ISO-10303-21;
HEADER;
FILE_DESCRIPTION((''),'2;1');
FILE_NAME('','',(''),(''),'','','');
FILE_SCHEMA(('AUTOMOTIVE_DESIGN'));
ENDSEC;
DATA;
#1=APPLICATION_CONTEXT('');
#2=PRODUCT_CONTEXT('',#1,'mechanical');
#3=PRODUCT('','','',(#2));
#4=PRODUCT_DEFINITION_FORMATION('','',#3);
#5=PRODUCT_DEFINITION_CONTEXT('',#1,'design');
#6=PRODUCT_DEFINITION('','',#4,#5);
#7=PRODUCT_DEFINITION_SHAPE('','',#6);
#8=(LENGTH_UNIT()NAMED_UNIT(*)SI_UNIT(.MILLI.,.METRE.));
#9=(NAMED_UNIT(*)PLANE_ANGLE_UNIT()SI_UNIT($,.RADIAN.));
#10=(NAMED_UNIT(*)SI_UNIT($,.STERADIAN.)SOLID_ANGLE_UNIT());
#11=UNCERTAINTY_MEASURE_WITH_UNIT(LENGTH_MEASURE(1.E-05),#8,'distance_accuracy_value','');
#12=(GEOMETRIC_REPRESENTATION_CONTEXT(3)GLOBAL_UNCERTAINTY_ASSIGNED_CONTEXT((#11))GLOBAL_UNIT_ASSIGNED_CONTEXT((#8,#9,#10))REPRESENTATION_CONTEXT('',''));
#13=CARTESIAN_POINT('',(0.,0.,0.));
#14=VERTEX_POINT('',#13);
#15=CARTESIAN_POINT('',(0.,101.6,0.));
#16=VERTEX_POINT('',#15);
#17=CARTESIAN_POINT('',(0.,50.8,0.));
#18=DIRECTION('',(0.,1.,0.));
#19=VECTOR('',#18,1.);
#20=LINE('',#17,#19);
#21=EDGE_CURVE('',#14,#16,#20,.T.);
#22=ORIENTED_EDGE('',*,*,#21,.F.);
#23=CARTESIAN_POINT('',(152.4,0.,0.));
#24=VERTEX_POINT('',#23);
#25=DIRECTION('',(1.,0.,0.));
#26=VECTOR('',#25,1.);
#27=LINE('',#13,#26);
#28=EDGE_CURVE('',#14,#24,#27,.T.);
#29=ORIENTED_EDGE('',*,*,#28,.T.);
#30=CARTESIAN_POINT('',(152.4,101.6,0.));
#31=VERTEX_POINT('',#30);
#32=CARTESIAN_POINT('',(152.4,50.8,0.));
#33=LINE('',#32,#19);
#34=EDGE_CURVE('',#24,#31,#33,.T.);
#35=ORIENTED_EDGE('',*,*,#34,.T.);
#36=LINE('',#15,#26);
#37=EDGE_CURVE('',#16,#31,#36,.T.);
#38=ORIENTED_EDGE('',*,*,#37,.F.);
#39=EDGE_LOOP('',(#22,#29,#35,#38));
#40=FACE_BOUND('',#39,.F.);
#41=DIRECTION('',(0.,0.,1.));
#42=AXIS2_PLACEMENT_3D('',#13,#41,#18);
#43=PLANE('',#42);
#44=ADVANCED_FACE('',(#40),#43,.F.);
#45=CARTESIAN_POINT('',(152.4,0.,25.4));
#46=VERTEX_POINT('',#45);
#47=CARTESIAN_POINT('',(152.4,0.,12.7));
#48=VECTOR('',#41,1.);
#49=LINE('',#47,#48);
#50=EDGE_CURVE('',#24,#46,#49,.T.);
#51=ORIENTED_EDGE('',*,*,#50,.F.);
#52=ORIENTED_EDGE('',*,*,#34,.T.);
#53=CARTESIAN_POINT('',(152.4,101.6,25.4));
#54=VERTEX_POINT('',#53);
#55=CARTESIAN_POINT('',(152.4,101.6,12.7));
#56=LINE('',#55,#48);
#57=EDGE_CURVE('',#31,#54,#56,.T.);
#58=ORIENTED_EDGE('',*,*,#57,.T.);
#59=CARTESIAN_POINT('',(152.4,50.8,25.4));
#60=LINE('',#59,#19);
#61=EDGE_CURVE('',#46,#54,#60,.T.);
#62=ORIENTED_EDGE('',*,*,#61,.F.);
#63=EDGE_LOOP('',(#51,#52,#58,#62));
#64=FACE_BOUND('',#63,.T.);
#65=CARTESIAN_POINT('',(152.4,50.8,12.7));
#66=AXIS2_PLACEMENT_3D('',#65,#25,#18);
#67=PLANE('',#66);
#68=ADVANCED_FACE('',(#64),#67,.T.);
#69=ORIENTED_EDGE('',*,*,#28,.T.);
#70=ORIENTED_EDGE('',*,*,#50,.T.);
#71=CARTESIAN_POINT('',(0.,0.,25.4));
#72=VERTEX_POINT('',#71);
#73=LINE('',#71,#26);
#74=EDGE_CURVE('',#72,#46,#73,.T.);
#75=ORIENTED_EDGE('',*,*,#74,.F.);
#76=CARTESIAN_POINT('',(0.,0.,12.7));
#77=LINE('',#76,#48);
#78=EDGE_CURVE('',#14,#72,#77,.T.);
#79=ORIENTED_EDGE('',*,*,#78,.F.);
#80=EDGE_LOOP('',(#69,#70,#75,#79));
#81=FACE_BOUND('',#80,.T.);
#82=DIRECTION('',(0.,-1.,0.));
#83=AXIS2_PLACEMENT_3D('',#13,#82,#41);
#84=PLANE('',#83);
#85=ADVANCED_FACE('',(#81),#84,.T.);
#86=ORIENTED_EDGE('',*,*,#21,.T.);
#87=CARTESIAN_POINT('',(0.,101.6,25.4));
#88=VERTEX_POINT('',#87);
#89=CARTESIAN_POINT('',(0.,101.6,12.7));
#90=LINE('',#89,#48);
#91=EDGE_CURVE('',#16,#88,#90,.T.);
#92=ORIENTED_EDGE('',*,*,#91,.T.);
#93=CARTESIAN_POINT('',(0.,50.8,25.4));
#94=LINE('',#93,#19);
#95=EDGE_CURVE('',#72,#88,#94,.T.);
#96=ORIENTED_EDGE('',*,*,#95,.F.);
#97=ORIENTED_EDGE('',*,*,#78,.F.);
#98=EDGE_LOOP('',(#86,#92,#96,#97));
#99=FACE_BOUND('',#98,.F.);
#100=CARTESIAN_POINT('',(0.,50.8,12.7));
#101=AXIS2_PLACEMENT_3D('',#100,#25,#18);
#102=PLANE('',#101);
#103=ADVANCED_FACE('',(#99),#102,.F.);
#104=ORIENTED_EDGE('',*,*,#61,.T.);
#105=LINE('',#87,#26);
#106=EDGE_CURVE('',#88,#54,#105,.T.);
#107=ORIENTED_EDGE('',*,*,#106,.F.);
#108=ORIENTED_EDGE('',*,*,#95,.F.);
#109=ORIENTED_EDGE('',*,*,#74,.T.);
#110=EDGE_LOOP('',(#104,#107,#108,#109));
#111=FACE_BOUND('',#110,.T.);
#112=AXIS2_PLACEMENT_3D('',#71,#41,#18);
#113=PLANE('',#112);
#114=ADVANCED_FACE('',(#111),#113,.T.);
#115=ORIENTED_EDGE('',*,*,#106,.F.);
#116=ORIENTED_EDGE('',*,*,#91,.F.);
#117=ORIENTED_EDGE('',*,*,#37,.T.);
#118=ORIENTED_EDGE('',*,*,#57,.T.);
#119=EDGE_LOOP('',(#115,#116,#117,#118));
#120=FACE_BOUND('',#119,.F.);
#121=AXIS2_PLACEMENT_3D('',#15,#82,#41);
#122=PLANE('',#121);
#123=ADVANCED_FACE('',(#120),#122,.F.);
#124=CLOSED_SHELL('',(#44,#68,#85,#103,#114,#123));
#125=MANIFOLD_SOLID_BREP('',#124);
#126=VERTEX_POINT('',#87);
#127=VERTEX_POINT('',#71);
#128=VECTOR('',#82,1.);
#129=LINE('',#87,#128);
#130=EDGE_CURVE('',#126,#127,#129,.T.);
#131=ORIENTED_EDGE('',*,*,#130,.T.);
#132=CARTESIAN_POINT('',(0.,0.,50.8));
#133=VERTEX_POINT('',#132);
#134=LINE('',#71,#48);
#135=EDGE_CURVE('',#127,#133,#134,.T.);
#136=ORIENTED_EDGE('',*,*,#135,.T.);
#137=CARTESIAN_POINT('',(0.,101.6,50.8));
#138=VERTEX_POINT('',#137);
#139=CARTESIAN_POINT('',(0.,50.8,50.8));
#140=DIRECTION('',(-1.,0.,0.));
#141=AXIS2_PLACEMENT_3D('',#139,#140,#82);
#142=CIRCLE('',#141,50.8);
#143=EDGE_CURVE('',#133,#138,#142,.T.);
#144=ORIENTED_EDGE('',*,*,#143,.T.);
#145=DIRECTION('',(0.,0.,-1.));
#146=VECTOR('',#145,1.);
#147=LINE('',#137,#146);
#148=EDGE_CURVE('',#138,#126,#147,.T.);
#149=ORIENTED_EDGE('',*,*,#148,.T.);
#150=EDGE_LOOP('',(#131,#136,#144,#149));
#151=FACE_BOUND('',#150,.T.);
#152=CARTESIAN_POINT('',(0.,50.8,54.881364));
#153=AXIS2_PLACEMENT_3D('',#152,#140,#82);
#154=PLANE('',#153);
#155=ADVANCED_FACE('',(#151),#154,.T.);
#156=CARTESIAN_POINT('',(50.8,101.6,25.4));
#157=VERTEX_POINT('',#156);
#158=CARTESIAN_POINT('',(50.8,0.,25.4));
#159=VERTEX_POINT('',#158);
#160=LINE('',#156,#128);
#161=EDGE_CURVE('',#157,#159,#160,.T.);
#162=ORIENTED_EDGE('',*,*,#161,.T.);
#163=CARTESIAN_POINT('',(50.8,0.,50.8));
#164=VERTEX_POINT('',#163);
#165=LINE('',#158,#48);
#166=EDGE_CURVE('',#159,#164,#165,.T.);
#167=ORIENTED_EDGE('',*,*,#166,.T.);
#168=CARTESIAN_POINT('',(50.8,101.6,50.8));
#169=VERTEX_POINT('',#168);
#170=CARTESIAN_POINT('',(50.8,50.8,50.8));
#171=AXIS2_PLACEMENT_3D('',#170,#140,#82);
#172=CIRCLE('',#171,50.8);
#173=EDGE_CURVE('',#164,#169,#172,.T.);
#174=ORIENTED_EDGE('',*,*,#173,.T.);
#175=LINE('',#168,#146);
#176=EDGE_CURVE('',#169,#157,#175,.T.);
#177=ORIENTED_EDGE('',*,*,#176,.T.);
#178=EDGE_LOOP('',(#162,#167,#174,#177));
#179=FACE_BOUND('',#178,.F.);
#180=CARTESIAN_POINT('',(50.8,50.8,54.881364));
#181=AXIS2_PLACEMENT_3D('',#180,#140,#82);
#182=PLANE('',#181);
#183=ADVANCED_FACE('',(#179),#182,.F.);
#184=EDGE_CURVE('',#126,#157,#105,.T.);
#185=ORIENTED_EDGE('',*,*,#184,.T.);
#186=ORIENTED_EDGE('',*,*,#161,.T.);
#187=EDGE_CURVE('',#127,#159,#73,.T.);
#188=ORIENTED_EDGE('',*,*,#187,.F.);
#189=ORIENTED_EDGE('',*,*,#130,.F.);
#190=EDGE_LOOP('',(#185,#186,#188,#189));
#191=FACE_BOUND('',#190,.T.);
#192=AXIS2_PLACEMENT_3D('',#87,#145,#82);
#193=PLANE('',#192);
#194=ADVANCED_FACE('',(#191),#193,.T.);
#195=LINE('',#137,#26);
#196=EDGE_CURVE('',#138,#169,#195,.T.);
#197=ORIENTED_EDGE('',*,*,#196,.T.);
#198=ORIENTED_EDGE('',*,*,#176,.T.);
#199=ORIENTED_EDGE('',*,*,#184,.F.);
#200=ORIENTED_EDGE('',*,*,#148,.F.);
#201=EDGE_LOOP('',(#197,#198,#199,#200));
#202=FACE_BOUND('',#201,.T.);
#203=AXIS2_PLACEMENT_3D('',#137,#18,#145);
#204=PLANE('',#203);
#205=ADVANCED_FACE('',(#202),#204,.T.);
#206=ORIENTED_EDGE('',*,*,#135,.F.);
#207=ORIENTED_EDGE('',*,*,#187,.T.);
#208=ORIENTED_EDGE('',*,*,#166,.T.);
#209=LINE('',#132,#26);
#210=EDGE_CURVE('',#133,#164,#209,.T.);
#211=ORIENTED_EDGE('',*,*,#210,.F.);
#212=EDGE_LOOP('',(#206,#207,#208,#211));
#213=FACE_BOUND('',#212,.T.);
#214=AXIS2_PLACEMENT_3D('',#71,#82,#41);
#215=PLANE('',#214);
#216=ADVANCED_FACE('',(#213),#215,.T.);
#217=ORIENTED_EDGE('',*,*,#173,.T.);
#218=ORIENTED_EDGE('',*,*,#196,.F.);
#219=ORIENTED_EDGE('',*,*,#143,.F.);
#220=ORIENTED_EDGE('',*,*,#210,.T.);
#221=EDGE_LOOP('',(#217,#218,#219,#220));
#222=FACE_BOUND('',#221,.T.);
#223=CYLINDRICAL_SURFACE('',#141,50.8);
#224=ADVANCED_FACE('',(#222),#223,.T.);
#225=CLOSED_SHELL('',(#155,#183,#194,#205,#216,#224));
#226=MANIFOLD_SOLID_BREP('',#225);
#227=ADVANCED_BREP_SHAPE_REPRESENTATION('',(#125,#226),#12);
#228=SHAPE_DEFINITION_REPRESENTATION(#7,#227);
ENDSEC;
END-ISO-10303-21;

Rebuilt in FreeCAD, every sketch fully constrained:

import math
import FreeCAD as App
import Part
import Sketcher

V = App.Vector
Q = App.Units.Quantity

doc = App.newDocument("Part")
params = doc.addObject("Spreadsheet::Sheet", "Params")
for row, (alias, value) in enumerate([
    ("sketch1_width", "4 in"),
    ("sketch1_height", "1 in"),
    ("pad1_length", "6 in"),
    ("sketch2_radius", "2 in"),
    ("sketch2_height", "1 in"),
    ("pad2_length", "2 in"),
], start=1):
    params.set(f"A{row}", alias)
    params.set(f"B{row}", "=" + value)
    params.setAlias(f"B{row}", alias)

body = doc.addObject("PartDesign::Body", "Body")

# Sketch on YZ plane
sketch1 = doc.addObject("Sketcher::SketchObject", "Sketch")
body.addObject(sketch1)
sketch1.AttachmentSupport = (doc.YZ_Plane, [""])
sketch1.MapMode = "FlatFace"
sketch1.addGeometry([
    Part.LineSegment(V(0, 25, 0), V(0, 0, 0)),
    Part.LineSegment(V(0, 0, 0), V(102, 0, 0)),
    Part.LineSegment(V(102, 0, 0), V(102, 25, 0)),
    Part.LineSegment(V(102, 25, 0), V(0, 25, 0)),
], False)
sketch1.addConstraint([
    Sketcher.Constraint("Coincident", 0, 2, 1, 1),
    Sketcher.Constraint("Coincident", 1, 2, 2, 1),
    Sketcher.Constraint("Coincident", 2, 2, 3, 1),
    Sketcher.Constraint("Coincident", 3, 2, 0, 1),
    Sketcher.Constraint("Vertical", 0),
    Sketcher.Constraint("Horizontal", 1),
    Sketcher.Constraint("Vertical", 2),
    Sketcher.Constraint("Horizontal", 3),
    Sketcher.Constraint("Coincident", 0, 2, -1, 1),
    Sketcher.Constraint("DistanceX", 1, 1, 1, 2, Q("4 in")),
    Sketcher.Constraint("DistanceY", 0, 2, 0, 1, Q("1 in")),
])
sketch1.setExpression("Constraints[9]", "Params.sketch1_width")
sketch1.setExpression("Constraints[10]", "Params.sketch1_height")
pad1 = doc.addObject("PartDesign::Pad", "Pad")
body.addObject(pad1)
pad1.Profile = sketch1
pad1.setExpression("Length", "Params.pad1_length")
body2 = doc.addObject("PartDesign::Body", "Body001")

# Sketch on YZ plane
sketch2 = doc.addObject("Sketcher::SketchObject", "Sketch001")
body2.addObject(sketch2)
sketch2.AttachmentSupport = (doc.getObject("YZ_Plane001"), [""])
sketch2.MapMode = "FlatFace"
sketch2.addGeometry([
    Part.LineSegment(V(0, 25, 0), V(0, 51, 0)),
    Part.ArcOfCircle(Part.Circle(V(51, 51, 0), V(0, 0, 1), 51), math.radians(0), math.radians(180)),
    Part.LineSegment(V(102, 51, 0), V(102, 25, 0)),
    Part.LineSegment(V(102, 25, 0), V(0, 25, 0)),
], False)
sketch2.addConstraint([
    Sketcher.Constraint("Tangent", 0, 2, 1, 2),
    Sketcher.Constraint("Tangent", 1, 1, 2, 1),
    Sketcher.Constraint("Coincident", 2, 2, 3, 1),
    Sketcher.Constraint("Coincident", 3, 2, 0, 1),
    Sketcher.Constraint("Vertical", 0),
    Sketcher.Constraint("Vertical", 2),
    Sketcher.Constraint("Horizontal", 3),
    Sketcher.Constraint("PointOnObject", 0, 2, -2),
    Sketcher.Constraint("Radius", 1, Q("2 in")),
    Sketcher.Constraint("DistanceY", 0, 1, 0, 2, Q("1 in")),
    Sketcher.Constraint("DistanceY", -1, 1, 1, 3, Q("2 in")),
])
sketch2.setExpression("Constraints[8]", "Params.sketch2_radius")
sketch2.setExpression("Constraints[9]", "Params.sketch2_height")
pad2 = doc.addObject("PartDesign::Pad", "Pad001")
body2.addObject(pad2)
pad2.Profile = sketch2
pad2.setExpression("Length", "Params.pad2_length")

doc.recompute()
